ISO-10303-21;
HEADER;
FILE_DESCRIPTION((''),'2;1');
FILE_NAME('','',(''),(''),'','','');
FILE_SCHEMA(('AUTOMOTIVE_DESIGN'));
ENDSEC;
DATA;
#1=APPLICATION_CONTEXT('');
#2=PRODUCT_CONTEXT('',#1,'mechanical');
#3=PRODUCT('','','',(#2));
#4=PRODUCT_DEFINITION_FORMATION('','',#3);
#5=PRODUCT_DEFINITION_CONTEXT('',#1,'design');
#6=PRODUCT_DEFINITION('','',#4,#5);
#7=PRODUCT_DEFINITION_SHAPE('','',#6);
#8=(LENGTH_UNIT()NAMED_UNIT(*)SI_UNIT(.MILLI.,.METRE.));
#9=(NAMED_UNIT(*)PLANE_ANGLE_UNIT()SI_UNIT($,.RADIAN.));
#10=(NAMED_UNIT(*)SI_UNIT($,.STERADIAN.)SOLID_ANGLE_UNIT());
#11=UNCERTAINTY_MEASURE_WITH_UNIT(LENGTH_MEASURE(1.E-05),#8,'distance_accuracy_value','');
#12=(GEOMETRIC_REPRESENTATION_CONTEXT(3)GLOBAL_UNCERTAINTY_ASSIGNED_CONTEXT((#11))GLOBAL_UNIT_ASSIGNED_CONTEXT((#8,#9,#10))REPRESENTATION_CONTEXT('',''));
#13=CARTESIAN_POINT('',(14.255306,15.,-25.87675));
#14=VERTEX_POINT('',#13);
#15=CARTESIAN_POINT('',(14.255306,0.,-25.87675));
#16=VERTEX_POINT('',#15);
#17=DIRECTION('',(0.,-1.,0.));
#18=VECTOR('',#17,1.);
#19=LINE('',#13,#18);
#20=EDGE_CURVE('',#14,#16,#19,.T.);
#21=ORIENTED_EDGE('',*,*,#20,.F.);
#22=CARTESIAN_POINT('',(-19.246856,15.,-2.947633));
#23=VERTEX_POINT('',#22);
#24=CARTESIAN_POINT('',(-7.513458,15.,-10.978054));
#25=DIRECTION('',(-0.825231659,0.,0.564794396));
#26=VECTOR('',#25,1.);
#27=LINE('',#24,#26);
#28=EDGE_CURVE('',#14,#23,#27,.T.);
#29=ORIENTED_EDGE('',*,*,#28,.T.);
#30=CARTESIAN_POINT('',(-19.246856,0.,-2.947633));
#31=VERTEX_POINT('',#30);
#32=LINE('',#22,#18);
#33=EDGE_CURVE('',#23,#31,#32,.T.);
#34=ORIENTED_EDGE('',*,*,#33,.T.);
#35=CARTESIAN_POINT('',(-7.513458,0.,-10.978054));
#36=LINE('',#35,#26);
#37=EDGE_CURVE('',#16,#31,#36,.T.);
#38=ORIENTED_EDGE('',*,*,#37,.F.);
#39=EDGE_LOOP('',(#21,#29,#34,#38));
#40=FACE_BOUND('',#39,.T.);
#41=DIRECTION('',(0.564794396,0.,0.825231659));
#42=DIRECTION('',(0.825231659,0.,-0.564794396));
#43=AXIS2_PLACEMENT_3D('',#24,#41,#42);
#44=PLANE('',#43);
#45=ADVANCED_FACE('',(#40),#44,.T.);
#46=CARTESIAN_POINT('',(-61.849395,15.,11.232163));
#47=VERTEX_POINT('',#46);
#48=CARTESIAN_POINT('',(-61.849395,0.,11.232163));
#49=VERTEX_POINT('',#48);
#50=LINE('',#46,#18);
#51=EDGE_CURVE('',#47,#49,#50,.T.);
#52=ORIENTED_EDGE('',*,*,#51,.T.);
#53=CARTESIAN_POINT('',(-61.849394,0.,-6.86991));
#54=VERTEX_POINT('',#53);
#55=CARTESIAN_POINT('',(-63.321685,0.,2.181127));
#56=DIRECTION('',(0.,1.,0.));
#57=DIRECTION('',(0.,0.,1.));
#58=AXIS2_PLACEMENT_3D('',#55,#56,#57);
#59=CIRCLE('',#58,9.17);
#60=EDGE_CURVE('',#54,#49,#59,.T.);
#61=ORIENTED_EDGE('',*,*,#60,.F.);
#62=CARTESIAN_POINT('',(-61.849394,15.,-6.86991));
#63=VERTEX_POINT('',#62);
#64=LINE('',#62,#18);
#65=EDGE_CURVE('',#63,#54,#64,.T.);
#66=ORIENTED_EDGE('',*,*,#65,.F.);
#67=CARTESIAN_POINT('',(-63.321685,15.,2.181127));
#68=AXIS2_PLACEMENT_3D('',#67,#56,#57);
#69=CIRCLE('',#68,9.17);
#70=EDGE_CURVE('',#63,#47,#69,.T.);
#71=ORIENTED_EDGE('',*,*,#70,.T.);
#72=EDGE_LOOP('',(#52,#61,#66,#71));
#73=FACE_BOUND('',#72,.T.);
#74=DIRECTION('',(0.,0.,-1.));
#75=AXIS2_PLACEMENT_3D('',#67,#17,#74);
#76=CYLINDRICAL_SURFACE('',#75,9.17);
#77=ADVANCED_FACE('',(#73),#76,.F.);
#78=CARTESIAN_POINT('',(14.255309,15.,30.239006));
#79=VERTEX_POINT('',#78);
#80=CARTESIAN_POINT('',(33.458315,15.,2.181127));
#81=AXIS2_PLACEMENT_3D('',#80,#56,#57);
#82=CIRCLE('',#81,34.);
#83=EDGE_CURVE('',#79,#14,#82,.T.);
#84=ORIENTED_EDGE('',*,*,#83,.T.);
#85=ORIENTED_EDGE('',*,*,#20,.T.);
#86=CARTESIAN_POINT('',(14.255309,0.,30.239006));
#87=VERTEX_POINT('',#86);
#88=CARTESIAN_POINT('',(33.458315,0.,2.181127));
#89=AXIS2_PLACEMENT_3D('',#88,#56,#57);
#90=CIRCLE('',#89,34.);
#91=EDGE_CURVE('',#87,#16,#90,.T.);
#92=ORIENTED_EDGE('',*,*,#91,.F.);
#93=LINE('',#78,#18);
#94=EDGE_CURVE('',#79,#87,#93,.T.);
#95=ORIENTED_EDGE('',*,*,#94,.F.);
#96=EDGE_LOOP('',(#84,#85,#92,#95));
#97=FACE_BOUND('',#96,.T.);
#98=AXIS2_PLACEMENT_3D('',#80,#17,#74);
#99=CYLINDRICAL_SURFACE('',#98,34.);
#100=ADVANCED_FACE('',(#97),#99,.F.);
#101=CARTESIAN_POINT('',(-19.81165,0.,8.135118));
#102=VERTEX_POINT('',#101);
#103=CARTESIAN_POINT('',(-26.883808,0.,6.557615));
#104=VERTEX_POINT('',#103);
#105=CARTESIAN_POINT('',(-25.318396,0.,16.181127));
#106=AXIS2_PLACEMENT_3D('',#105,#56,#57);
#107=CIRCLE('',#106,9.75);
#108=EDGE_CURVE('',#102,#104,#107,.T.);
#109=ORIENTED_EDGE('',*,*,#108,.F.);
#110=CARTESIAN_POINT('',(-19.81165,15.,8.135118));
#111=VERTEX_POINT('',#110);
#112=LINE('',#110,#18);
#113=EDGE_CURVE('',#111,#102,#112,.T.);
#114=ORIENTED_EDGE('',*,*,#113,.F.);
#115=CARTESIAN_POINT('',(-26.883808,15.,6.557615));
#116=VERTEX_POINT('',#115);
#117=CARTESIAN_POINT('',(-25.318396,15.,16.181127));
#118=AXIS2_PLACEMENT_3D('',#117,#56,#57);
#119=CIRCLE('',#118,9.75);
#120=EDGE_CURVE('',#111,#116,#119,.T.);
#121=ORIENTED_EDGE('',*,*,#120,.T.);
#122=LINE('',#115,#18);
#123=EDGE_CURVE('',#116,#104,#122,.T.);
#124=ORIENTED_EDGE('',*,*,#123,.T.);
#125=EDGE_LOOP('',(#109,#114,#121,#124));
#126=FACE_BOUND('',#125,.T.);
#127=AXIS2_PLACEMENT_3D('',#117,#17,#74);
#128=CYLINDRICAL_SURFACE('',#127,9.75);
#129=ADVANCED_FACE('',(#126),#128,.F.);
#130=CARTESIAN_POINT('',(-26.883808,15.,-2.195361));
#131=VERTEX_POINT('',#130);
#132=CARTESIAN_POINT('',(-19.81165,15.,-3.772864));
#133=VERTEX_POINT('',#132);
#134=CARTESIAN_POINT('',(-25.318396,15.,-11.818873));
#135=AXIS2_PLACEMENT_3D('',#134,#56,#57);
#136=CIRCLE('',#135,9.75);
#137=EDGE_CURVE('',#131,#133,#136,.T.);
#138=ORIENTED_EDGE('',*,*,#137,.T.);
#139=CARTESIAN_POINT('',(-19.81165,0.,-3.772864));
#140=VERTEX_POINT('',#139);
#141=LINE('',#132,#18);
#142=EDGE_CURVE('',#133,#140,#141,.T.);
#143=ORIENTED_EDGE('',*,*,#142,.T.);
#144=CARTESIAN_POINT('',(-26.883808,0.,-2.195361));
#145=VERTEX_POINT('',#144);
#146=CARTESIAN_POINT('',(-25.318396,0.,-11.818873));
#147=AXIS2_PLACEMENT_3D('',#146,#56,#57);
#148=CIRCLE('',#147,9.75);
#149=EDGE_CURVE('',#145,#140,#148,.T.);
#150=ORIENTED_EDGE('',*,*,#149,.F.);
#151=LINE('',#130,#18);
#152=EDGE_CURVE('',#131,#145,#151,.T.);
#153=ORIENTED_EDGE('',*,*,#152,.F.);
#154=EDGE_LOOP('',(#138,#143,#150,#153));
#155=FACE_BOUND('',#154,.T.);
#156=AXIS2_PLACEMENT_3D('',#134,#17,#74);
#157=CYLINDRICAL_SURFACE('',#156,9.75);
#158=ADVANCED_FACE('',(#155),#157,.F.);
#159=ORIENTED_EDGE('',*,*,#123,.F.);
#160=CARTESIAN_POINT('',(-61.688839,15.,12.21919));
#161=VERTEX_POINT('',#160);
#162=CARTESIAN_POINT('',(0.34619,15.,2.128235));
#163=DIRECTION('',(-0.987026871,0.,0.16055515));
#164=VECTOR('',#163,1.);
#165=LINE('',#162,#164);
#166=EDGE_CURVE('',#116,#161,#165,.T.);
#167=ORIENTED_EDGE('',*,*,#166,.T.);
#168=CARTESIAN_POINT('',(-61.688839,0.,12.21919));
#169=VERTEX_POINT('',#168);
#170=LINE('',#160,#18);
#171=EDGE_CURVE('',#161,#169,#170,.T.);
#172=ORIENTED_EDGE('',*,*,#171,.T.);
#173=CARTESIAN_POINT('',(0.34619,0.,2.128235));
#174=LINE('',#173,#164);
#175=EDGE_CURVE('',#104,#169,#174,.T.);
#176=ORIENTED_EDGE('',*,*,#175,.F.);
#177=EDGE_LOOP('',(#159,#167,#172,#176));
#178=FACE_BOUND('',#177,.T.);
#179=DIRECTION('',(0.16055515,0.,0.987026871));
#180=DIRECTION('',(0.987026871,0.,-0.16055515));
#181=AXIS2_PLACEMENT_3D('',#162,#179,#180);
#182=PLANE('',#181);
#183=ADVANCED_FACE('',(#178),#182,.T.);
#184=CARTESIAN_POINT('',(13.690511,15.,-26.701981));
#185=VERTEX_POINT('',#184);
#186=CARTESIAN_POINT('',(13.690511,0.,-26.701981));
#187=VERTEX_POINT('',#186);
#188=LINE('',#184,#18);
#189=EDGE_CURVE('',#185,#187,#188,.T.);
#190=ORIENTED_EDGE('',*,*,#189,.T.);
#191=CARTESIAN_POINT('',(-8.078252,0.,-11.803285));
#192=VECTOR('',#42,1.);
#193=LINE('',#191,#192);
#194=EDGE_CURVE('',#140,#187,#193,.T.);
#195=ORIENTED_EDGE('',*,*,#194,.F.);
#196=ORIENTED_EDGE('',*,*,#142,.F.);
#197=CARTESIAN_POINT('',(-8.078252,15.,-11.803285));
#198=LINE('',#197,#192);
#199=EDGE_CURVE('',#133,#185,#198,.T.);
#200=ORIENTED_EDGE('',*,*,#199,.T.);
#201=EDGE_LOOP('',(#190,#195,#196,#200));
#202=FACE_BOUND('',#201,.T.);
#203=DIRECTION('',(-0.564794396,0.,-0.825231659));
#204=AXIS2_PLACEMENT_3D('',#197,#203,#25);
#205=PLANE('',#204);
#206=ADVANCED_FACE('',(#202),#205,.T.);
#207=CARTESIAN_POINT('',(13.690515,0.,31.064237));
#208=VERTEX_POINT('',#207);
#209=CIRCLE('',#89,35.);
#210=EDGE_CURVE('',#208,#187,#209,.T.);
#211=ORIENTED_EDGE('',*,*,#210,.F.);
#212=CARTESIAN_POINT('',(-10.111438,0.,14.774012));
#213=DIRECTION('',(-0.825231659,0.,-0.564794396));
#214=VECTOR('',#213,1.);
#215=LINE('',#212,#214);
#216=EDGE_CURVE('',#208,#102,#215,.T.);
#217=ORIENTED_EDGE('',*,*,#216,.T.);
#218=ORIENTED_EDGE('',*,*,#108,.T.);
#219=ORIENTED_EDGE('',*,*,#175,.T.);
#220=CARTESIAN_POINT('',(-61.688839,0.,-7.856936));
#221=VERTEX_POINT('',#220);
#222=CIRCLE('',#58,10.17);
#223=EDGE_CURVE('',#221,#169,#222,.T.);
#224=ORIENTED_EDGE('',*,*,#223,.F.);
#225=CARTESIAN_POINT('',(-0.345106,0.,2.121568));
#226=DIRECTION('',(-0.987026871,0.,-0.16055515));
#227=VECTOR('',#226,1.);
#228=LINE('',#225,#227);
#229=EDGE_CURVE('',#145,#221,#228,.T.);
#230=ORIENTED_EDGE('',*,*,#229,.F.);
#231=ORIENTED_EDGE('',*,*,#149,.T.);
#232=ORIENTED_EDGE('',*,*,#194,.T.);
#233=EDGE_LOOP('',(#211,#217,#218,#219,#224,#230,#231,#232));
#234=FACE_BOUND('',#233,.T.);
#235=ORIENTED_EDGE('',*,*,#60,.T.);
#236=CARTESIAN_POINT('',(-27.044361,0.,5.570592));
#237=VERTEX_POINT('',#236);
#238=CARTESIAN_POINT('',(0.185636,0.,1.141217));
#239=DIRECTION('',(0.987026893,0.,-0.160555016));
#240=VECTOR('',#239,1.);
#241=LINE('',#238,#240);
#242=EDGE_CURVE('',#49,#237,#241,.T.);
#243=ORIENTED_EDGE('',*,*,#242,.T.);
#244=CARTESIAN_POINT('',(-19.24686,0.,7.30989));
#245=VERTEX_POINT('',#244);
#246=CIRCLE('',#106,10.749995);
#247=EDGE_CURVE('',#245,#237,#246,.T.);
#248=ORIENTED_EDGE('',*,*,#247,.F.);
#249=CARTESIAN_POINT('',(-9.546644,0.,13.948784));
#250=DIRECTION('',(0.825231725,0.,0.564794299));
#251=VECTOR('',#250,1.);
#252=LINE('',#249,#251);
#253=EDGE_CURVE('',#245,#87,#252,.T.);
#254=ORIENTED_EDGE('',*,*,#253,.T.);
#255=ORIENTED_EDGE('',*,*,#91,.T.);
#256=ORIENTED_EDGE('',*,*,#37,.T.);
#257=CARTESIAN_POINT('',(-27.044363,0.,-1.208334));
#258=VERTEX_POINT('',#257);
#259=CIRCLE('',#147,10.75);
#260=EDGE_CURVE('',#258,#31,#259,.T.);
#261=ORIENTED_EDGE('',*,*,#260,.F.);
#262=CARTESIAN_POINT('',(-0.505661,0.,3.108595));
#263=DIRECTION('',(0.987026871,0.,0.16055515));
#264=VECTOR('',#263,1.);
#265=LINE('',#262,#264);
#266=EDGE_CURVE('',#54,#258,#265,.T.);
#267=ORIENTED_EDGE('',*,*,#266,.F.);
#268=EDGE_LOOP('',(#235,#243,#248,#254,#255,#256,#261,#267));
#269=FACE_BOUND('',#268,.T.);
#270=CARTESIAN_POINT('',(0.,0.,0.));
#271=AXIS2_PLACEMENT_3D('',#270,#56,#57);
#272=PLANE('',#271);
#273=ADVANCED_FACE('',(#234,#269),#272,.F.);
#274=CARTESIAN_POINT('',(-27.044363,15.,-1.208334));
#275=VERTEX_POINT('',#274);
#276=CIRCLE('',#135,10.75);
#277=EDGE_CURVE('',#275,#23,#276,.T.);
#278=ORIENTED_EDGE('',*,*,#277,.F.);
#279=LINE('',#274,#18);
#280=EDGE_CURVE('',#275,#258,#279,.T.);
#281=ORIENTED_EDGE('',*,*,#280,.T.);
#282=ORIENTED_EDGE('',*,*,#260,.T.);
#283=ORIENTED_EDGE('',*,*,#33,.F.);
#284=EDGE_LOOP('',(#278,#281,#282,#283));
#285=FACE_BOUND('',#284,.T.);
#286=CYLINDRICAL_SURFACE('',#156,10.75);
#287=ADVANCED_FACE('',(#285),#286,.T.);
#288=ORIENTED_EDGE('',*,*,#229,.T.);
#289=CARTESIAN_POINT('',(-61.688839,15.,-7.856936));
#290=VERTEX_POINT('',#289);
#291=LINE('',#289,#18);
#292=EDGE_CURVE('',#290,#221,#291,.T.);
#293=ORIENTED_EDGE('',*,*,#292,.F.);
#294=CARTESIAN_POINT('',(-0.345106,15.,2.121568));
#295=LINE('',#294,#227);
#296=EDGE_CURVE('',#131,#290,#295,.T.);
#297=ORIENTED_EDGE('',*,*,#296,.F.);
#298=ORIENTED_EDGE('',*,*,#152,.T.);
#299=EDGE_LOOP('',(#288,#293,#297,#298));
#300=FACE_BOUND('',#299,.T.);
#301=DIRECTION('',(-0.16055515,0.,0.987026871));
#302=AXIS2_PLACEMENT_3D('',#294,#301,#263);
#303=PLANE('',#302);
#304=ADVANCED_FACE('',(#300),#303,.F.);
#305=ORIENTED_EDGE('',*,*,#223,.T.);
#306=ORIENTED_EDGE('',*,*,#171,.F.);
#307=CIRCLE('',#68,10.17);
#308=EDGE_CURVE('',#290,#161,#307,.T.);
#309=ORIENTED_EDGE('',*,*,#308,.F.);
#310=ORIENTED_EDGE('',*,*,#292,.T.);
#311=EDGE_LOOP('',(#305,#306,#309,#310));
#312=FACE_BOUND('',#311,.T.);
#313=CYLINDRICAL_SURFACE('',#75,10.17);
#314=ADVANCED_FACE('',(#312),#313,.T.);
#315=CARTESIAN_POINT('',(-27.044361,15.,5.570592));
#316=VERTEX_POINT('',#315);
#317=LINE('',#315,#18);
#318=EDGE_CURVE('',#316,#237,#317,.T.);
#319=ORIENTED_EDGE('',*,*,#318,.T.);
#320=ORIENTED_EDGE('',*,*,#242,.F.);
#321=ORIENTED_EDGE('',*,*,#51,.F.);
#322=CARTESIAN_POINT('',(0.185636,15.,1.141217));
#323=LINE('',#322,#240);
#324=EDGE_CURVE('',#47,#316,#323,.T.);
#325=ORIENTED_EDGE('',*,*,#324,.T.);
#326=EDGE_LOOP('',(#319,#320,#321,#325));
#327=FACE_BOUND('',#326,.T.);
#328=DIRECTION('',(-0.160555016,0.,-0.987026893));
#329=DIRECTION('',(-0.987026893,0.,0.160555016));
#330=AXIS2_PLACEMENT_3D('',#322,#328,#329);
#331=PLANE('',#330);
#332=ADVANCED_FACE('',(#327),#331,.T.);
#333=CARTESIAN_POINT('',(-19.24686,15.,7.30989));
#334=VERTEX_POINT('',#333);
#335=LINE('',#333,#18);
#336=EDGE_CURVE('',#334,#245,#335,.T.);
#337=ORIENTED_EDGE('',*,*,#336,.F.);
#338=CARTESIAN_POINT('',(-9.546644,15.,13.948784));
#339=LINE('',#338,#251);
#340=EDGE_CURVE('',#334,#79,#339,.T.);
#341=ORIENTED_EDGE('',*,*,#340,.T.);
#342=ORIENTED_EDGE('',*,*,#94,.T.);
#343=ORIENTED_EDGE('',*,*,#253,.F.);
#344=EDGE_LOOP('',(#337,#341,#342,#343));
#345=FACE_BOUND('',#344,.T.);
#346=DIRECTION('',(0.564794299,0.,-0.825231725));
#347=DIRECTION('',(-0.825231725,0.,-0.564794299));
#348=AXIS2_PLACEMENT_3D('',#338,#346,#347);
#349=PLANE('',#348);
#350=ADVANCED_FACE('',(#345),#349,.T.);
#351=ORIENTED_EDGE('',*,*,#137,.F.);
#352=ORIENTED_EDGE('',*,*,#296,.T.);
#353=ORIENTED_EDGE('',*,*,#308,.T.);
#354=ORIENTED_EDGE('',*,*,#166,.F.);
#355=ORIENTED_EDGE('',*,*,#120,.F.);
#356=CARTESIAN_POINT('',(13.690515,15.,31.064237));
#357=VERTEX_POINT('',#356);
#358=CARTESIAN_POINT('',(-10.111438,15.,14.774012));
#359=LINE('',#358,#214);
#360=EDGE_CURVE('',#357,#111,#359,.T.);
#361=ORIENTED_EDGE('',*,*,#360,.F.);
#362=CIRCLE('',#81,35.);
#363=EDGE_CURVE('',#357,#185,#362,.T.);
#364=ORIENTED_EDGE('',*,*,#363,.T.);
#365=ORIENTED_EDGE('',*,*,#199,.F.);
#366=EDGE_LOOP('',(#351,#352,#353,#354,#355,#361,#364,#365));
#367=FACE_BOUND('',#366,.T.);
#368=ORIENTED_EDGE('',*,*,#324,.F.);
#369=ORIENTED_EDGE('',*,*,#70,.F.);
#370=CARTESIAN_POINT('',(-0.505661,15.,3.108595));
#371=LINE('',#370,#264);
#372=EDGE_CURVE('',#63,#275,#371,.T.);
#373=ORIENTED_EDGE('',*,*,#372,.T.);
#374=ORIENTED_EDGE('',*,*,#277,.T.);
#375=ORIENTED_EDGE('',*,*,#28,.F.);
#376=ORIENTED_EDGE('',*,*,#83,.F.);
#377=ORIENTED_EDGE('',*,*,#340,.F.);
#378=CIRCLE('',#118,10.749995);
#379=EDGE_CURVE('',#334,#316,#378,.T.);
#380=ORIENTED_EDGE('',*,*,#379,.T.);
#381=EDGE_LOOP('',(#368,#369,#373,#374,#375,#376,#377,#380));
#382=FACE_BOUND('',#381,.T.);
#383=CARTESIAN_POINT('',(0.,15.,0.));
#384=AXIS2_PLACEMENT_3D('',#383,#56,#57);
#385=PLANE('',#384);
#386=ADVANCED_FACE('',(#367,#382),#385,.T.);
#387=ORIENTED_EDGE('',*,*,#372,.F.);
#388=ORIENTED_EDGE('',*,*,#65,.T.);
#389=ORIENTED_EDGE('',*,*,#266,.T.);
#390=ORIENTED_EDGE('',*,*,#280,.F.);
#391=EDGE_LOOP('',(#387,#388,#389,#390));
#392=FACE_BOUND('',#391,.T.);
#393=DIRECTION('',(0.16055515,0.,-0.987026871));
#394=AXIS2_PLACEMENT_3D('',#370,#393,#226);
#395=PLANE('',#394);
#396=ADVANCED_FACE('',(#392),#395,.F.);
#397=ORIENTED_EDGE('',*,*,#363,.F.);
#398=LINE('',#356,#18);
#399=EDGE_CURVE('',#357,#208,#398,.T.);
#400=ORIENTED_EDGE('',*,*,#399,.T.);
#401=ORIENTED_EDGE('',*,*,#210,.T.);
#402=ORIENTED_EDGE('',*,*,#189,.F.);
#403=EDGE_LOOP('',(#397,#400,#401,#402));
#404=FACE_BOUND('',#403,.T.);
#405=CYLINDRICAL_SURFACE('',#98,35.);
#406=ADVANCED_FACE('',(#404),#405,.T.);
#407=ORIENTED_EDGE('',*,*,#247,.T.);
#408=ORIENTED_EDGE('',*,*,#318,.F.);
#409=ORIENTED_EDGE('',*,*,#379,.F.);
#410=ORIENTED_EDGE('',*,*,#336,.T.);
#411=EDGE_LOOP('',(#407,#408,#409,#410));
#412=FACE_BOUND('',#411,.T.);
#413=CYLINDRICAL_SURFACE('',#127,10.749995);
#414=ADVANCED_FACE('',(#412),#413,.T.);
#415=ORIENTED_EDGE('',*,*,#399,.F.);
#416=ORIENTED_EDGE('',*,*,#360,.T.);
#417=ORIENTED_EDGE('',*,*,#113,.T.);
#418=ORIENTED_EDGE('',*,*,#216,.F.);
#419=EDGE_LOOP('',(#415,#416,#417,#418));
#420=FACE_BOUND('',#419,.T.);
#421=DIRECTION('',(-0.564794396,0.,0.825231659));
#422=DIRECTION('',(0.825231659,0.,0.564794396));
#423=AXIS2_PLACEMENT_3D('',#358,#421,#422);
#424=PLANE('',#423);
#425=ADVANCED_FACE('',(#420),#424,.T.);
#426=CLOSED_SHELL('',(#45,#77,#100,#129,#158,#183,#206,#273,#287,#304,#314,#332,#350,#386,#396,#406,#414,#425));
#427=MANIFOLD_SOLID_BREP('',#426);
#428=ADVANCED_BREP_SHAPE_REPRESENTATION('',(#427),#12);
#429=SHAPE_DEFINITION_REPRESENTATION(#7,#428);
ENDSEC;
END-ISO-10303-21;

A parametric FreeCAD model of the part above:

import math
import FreeCAD as App
import Part
import Sketcher
Q = App.Units.Quantity

doc = App.newDocument("Part")
body = doc.addObject("PartDesign::Body", "Body")

sketch1 = body.newObject("Sketcher::SketchObject", "Sketch")
sketch1.AttachmentSupport = (doc.getObject("XZ_Plane"), [""])
sketch1.MapMode = "FlatFace"
sketch1.addGeometry([
    Part.LineSegment(App.Vector(13.690511, -26.701981, 0), App.Vector(-19.81165, -3.772864, 0)),
    Part.ArcOfCircle(Part.Circle(App.Vector(-25.318396, -11.818873, 0), App.Vector(0, 0, 1), 9.75), math.radians(55.611985), math.radians(99.239121)),
    Part.LineSegment(App.Vector(-26.883808, -2.195361, 0), App.Vector(-61.688839, -7.856936, 0)),
    Part.ArcOfCircle(Part.Circle(App.Vector(-63.321685, 2.181127, 0), App.Vector(0, 0, 1), 10.17), math.radians(80.760879), math.radians(279.239121)),
    Part.LineSegment(App.Vector(-61.688839, 12.21919, 0), App.Vector(-26.883808, 6.557615, 0)),
    Part.ArcOfCircle(Part.Circle(App.Vector(-25.318396, 16.181127, 0), App.Vector(0, 0, 1), 9.75), math.radians(-99.239121), math.radians(-55.611985)),
    Part.LineSegment(App.Vector(-19.81165, 8.135118, 0), App.Vector(13.690515, 31.064237, 0)),
    Part.ArcOfCircle(Part.Circle(App.Vector(33.458315, 2.181127, 0), App.Vector(0, 0, 1), 35), math.radians(-124.388015), math.radians(124.388008)),
    Part.LineSegment(App.Vector(-27.044361, 5.570592, 0), App.Vector(-61.849395, 11.232163, 0)),
    Part.ArcOfCircle(Part.Circle(App.Vector(-63.321685, 2.181127, 0), App.Vector(0, 0, 1), 9.17), math.radians(80.760887), math.radians(279.239121)),
    Part.LineSegment(App.Vector(-61.849394, -6.86991, 0), App.Vector(-27.044363, -1.208334, 0)),
    Part.ArcOfCircle(Part.Circle(App.Vector(-25.318396, -11.818873, 0), App.Vector(0, 0, 1), 10.75), math.radians(55.611985), math.radians(99.239121)),
    Part.LineSegment(App.Vector(-19.246856, -2.947633, 0), App.Vector(14.255306, -25.87675, 0)),
    Part.ArcOfCircle(Part.Circle(App.Vector(33.458315, 2.181127, 0), App.Vector(0, 0, 1), 34), math.radians(-124.388015), math.radians(124.388008)),
    Part.LineSegment(App.Vector(14.255309, 30.239006, 0), App.Vector(-19.24686, 7.30989, 0)),
    Part.ArcOfCircle(Part.Circle(App.Vector(-25.318396, 16.181127, 0), App.Vector(0, 0, 1), 10.749995), math.radians(-99.239113), math.radians(-55.611992)),
], False)
sketch1.addConstraint([
    Sketcher.Constraint("Tangent", 0, 2, 1, 1),
    Sketcher.Constraint("Tangent", 1, 2, 2, 1),
    Sketcher.Constraint("Tangent", 2, 2, 3, 2),
    Sketcher.Constraint("Tangent", 3, 1, 4, 1),
    Sketcher.Constraint("Tangent", 4, 2, 5, 1),
    Sketcher.Constraint("Tangent", 5, 2, 6, 1),
    Sketcher.Constraint("Tangent", 6, 2, 7, 2),
    Sketcher.Constraint("Tangent", 7, 1, 0, 1),
    Sketcher.Constraint("Tangent", 8, 2, 9, 1),
    Sketcher.Constraint("Tangent", 9, 2, 10, 1),
    Sketcher.Constraint("Tangent", 10, 2, 11, 2),
    Sketcher.Constraint("Tangent", 11, 1, 12, 1),
    Sketcher.Constraint("Tangent", 12, 2, 13, 1),
    Sketcher.Constraint("Tangent", 13, 2, 14, 1),
    Sketcher.Constraint("Tangent", 14, 2, 15, 2),
    Sketcher.Constraint("Tangent", 15, 1, 8, 1),
    Sketcher.Constraint("Coincident", 9, 3, 3, 3),
    Sketcher.Constraint("Coincident", 11, 3, 1, 3),
    Sketcher.Constraint("Coincident", 13, 3, 7, 3),
    Sketcher.Constraint("Coincident", 15, 3, 5, 3),
    Sketcher.Constraint("Equal", 1, 5),
    Sketcher.Constraint("Parallel", 4, 8),
    Sketcher.Constraint("Parallel", 2, 10),
    Sketcher.Constraint("Parallel", 0, 12),
    Sketcher.Constraint("Horizontal", 3, 3, 7, 3),
    Sketcher.Constraint("Vertical", 1, 3, 5, 3),
    Sketcher.Constraint("Vertical", 2, 2, 3, 1),
    Sketcher.Constraint("Radius", 7, Q("35 mm")),
    Sketcher.Constraint("Radius", 13, Q("34 mm")),
    Sketcher.Constraint("Radius", 1, Q("9.75 mm")),
    Sketcher.Constraint("Radius", 3, Q("10.17 mm")),
    Sketcher.Constraint("DistanceY", 1, 3, 3, 3, Q("14 mm")),
    Sketcher.Constraint("DistanceX", 3, 3, 7, 3, Q("96.78 mm")),
    Sketcher.Constraint("Distance", 8, Q("35.262498 mm")),
    Sketcher.Constraint("DistanceX", 0, 2, -1, 1, Q("19.81165 mm")),
    Sketcher.Constraint("DistanceY", 1, 2, -1, 1, Q("2.195361 mm")),
])
pad1 = body.newObject("PartDesign::Pad", "Pad")
pad1.Profile = sketch1
pad1.Length = 15
pad1.Reversed = True

doc.recompute()
